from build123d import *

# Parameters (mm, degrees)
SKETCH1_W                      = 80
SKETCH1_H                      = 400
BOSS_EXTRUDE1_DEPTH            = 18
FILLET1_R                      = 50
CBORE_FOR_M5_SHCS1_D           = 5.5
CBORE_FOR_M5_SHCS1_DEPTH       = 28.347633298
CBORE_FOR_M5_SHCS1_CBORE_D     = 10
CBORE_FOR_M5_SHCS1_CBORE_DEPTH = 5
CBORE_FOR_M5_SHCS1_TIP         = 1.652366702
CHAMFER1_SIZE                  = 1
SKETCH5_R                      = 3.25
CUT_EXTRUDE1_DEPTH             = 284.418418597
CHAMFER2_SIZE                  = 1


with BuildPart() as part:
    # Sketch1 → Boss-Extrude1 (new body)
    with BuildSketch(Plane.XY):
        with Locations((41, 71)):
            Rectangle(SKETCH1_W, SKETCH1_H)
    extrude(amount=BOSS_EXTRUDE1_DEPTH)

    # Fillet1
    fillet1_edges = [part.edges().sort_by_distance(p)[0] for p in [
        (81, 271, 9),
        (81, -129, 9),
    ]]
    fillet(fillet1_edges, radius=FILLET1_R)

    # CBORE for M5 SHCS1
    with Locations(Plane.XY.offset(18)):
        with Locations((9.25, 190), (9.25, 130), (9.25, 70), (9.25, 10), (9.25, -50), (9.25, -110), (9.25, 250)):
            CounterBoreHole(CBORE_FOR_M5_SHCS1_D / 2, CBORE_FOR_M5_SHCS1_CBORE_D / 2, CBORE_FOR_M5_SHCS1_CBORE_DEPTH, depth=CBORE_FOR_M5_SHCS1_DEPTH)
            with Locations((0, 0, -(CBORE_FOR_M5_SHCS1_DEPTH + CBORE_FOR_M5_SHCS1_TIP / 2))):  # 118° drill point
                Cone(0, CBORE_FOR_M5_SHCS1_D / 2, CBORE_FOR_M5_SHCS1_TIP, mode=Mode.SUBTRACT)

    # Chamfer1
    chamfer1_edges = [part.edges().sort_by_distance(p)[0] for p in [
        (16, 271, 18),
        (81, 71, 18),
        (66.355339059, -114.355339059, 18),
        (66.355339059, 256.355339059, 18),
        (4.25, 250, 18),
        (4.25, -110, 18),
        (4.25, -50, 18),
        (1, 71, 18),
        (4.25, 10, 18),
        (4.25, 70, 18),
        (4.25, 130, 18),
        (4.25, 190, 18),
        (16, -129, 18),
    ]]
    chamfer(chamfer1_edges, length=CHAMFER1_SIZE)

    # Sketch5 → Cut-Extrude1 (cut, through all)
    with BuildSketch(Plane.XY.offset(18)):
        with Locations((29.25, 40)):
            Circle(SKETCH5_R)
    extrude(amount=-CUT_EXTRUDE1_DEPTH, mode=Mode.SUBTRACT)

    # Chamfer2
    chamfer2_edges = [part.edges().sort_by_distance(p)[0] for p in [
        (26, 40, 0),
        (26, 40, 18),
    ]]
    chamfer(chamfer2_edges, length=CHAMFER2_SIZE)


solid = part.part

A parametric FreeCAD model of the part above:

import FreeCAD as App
import Part
import Sketcher
Q = App.Units.Quantity


def edges_at(feature, points):
    """Names of the edges that pass closest to the given points."""
    edges = feature.Shape.Edges
    near = lambda p: min(range(len(edges)), key=lambda i: edges[i].distToShape(Part.Vertex(*p))[0])
    return sorted({f"Edge{near(p) + 1}" for p in points})


def add_polygon(sketch, points):
    """Adds a closed chain of lines whose ends are joined by coincident constraints."""
    first, n = sketch.GeometryCount, len(points)
    for a, b in zip(points, points[1:] + points[:1]):
        sketch.addGeometry(Part.LineSegment(App.Vector(*a, 0), App.Vector(*b, 0)), False)
    for i in range(n):
        sketch.addConstraint(Sketcher.Constraint("Coincident", first + i, 2, first + (i + 1) % n, 1))

doc = App.newDocument("Part")
body = doc.addObject("PartDesign::Body", "Body")

# Sketch on XY plane
sketch1 = body.newObject("Sketcher::SketchObject", "Sketch")
sketch1.AttachmentSupport = (doc.getObject("XY_Plane"), [""])
sketch1.MapMode = "FlatFace"
add_polygon(sketch1, [(1, 271), (1, -129), (81, -129), (81, 271)])  # lines 0-3
sketch1.addConstraint([
    Sketcher.Constraint("Vertical", 0),
    Sketcher.Constraint("Horizontal", 1),
    Sketcher.Constraint("Vertical", 2),
    Sketcher.Constraint("Horizontal", 3),
    Sketcher.Constraint("DistanceX", 1, 1, 1, 2, Q("80 mm")),
    Sketcher.Constraint("DistanceY", 0, 2, 0, 1, Q("400 mm")),
    Sketcher.Constraint("DistanceX", -1, 1, 0, 2, Q("1 mm")),
    Sketcher.Constraint("DistanceY", 0, 2, -1, 1, Q("129 mm")),
])
pad1 = body.newObject("PartDesign::Pad", "Pad")
pad1.Profile = sketch1
pad1.Length = 18
doc.recompute()

fillet = body.newObject("PartDesign::Fillet", "Fillet")
fillet.Base = (pad1, edges_at(pad1, [(81, 271, 9), (81, -129, 9)]))
fillet.Radius = 50

# Sketch on XY plane
sketch2 = body.newObject("Sketcher::SketchObject", "Sketch001")
sketch2.AttachmentSupport = (doc.getObject("XY_Plane"), [""])
sketch2.MapMode = "FlatFace"
sketch2.AttachmentOffset = App.Placement(App.Vector(0, 0, 18), App.Rotation())
sketch2.addGeometry([
    Part.Circle(App.Vector(9.2, 190, 0), App.Vector(0, 0, 1), 2.8),  # 0
    Part.Circle(App.Vector(9.2, 130, 0), App.Vector(0, 0, 1), 2.8),  # 1
    Part.Circle(App.Vector(9.2, 70, 0), App.Vector(0, 0, 1), 2.8),  # 2
    Part.Circle(App.Vector(9.2, 10, 0), App.Vector(0, 0, 1), 2.8),  # 3
    Part.Circle(App.Vector(9.2, -50, 0), App.Vector(0, 0, 1), 2.8),  # 4
    Part.Circle(App.Vector(9.2, -110, 0), App.Vector(0, 0, 1), 2.8),  # 5
    Part.Circle(App.Vector(9.2, 250, 0), App.Vector(0, 0, 1), 2.8),  # 6
], False)
sketch2.addConstraint([
    Sketcher.Constraint("Equal", 0, 1),
    Sketcher.Constraint("Equal", 1, 2),
    Sketcher.Constraint("Equal", 2, 3),
    Sketcher.Constraint("Equal", 3, 4),
    Sketcher.Constraint("Equal", 4, 5),
    Sketcher.Constraint("Equal", 5, 6),
    Sketcher.Constraint("Vertical", 0, 3, 1, 3),
    Sketcher.Constraint("Vertical", 1, 3, 2, 3),
    Sketcher.Constraint("Vertical", 2, 3, 3, 3),
    Sketcher.Constraint("Vertical", 3, 3, 4, 3),
    Sketcher.Constraint("Vertical", 4, 3, 5, 3),
    Sketcher.Constraint("Vertical", 5, 3, 6, 3),
    Sketcher.Constraint("Diameter", 0, Q("5.5 mm")),
    Sketcher.Constraint("DistanceY", -1, 1, 0, 3, Q("190 mm")),
    Sketcher.Constraint("DistanceY", -1, 1, 1, 3, Q("130 mm")),
    Sketcher.Constraint("DistanceY", -1, 1, 2, 3, Q("70 mm")),
    Sketcher.Constraint("DistanceY", -1, 1, 3, 3, Q("10 mm")),
    Sketcher.Constraint("DistanceY", 4, 3, -1, 1, Q("50 mm")),
    Sketcher.Constraint("DistanceY", 5, 3, -1, 1, Q("110 mm")),
    Sketcher.Constraint("DistanceY", -1, 1, 6, 3, Q("250 mm")),
    Sketcher.Constraint("DistanceX", -1, 1, 0, 3, Q("9.25 mm")),
])
doc.recompute()
hole = body.newObject("PartDesign::Hole", "Hole")
hole.Profile = sketch2
hole.ThreadType = "None"
hole.Diameter = 5.5
hole.DepthType = "Dimension"
hole.Depth = 28.347633
hole.DrillPoint = "Angled"
hole.DrillPointAngle = 118
hole.HoleCutType = "Counterbore"
hole.HoleCutDiameter = 10
hole.HoleCutDepth = 5
doc.recompute()

chamfer = body.newObject("PartDesign::Chamfer", "Chamfer")
chamfer.Base = (hole, edges_at(hole, [
    (16, 271, 18),
    (81, 71, 18),
    (66.355, -114.355, 18),
    (66.355, 256.355, 18),
    (4.25, 250, 18),
    (4.25, -110, 18),
    (4.25, -50, 18),
    (1, 71, 18),
    (4.25, 10, 18),
    (4.25, 70, 18),
    (4.25, 130, 18),
    (4.25, 190, 18),
    (16, -129, 18),
]))
chamfer.Size = 1

# Sketch on XY plane
sketch3 = body.newObject("Sketcher::SketchObject", "Sketch002")
sketch3.AttachmentSupport = (doc.getObject("XY_Plane"), [""])
sketch3.MapMode = "FlatFace"
sketch3.AttachmentOffset = App.Placement(App.Vector(0, 0, 18), App.Rotation())
sketch3.addGeometry(Part.Circle(App.Vector(29.2, 40, 0), App.Vector(0, 0, 1), 3.2), False)
sketch3.addConstraint([
    Sketcher.Constraint("Diameter", 0, Q("6.5 mm")),
    Sketcher.Constraint("DistanceY", -1, 1, 0, 3, Q("40 mm")),
    Sketcher.Constraint("DistanceX", -1, 1, 0, 3, Q("29.25 mm")),
])
pocket1 = body.newObject("PartDesign::Pocket", "Pocket")
pocket1.Profile = sketch3
pocket1.Type = "ThroughAll"
doc.recompute()

chamfer2 = body.newObject("PartDesign::Chamfer", "Chamfer001")
chamfer2.Base = (pocket1, edges_at(pocket1, [(26, 40, 0), (26, 40, 18)]))
chamfer2.Size = 1

doc.recompute()
